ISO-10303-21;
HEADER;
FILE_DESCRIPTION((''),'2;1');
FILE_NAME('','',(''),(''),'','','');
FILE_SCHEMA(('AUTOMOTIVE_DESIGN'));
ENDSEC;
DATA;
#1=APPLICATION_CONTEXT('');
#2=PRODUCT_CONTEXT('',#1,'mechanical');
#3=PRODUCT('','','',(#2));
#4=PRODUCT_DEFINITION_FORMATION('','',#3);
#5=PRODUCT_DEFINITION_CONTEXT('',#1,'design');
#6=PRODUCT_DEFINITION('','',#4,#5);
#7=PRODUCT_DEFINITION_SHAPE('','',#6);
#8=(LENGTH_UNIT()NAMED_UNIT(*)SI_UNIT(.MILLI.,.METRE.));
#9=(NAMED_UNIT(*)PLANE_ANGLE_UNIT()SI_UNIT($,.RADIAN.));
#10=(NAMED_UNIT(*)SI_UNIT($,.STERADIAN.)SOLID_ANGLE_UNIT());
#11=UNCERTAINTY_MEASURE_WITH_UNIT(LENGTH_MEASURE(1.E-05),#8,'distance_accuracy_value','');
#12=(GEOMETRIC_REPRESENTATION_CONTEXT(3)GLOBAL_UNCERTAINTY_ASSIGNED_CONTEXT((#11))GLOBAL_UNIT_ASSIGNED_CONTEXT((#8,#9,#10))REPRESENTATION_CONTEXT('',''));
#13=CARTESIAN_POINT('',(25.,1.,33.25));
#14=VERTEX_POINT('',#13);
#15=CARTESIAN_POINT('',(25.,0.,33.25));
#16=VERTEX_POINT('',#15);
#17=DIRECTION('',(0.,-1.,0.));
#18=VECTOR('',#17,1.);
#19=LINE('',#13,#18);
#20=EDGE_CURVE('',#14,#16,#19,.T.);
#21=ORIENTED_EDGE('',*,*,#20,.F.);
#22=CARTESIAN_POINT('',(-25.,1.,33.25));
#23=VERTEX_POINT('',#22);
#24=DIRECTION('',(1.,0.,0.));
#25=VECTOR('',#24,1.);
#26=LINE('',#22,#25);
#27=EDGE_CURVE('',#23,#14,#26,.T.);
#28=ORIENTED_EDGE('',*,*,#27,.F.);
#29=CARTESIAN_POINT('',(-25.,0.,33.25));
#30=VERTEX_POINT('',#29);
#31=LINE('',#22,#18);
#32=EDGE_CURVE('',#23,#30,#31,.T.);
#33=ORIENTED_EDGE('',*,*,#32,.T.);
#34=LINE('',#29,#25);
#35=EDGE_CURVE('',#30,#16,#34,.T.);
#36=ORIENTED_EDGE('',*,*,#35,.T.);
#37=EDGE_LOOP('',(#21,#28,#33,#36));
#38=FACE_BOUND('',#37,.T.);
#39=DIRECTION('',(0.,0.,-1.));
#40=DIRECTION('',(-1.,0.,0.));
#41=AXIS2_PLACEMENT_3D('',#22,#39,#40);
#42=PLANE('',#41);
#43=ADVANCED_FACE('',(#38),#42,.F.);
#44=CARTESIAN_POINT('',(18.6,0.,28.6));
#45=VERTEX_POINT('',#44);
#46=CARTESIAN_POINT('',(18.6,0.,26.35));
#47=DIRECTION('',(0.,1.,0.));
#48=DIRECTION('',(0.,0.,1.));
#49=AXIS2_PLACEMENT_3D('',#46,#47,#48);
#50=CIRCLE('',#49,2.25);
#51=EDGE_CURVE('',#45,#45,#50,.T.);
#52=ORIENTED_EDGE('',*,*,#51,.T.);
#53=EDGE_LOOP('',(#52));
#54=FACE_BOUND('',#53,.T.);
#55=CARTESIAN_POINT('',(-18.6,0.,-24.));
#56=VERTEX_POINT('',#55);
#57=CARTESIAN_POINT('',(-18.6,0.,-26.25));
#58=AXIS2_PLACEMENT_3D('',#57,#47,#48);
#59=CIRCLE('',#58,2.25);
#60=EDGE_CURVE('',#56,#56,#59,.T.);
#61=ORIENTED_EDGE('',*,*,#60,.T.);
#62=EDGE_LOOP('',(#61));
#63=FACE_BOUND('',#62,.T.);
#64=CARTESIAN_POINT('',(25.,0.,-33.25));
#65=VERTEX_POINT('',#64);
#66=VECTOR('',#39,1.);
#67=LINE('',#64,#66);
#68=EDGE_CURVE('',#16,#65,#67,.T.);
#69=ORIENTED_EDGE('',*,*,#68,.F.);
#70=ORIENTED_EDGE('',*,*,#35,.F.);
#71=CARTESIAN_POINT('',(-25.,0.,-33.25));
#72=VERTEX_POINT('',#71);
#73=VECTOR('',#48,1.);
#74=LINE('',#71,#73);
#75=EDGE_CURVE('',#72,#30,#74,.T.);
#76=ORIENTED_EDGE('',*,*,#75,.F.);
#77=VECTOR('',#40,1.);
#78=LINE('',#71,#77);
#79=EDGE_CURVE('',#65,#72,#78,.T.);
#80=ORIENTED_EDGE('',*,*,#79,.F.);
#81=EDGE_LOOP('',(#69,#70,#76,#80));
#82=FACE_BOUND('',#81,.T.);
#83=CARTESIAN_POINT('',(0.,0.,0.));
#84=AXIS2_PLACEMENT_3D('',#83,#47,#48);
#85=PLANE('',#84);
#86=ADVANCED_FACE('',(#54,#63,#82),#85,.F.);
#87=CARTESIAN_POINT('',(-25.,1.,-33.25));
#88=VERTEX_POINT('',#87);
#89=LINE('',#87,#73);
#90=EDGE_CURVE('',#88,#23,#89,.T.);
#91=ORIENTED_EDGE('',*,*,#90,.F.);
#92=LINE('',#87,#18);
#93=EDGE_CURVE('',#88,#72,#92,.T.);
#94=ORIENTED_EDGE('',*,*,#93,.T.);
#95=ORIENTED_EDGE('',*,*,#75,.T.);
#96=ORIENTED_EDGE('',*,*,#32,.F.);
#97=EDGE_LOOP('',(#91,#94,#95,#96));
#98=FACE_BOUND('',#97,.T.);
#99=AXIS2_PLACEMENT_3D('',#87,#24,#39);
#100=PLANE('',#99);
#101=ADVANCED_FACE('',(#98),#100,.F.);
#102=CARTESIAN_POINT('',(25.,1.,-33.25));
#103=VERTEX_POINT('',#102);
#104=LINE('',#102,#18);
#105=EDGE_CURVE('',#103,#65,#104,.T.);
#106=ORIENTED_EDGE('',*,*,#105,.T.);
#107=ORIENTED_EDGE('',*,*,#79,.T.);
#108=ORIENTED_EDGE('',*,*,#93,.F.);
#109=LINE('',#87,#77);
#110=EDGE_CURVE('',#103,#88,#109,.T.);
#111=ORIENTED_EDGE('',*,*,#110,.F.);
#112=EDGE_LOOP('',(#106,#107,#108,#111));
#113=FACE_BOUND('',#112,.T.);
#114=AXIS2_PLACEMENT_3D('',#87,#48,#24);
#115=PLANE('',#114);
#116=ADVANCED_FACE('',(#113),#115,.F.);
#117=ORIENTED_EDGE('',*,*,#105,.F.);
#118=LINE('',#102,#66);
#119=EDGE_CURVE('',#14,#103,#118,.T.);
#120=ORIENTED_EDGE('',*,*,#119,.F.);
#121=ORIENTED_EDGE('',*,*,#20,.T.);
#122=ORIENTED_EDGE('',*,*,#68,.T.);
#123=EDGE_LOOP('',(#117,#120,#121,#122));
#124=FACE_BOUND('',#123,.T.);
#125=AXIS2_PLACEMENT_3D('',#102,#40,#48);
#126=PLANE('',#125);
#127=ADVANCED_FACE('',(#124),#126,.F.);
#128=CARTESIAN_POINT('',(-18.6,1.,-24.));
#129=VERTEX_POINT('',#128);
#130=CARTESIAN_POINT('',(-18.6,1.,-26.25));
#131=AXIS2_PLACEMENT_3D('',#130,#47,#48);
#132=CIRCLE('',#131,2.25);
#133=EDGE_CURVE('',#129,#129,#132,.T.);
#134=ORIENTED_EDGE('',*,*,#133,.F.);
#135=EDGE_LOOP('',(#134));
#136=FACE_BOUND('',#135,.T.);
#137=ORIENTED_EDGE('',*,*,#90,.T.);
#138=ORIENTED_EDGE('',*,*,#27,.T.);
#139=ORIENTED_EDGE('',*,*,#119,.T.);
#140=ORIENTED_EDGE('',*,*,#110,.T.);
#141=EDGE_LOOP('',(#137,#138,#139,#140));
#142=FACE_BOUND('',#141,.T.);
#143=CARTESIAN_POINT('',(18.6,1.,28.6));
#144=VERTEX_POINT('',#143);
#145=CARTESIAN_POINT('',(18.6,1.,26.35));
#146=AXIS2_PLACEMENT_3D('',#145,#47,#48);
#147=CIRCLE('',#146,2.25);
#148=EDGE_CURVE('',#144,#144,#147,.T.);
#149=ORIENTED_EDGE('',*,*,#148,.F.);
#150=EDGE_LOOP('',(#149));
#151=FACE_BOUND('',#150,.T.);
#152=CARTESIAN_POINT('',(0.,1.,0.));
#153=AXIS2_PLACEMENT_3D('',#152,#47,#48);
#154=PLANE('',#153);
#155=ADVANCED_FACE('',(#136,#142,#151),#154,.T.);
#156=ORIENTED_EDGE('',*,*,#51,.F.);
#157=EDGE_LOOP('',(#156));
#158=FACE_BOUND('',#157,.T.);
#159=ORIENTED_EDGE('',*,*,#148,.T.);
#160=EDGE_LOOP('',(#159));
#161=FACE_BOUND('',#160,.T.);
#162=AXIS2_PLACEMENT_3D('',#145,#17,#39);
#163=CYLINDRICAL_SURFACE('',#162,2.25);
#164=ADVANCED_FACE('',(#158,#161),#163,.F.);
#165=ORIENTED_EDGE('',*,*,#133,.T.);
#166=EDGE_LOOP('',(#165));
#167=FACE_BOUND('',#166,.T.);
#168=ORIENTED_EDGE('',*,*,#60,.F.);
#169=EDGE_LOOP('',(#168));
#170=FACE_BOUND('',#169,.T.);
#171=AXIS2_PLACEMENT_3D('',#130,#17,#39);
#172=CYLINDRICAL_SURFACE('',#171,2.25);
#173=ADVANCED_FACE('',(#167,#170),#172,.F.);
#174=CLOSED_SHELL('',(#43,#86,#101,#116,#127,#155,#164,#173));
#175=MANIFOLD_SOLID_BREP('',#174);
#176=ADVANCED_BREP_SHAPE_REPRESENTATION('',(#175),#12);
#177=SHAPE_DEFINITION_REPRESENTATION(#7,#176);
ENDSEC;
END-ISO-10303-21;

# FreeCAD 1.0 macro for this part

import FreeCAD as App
import Part
import Sketcher

V = App.Vector
Q = App.Units.Quantity


def add_polygon(sketch, points):
    """Adds a closed chain of lines whose ends are joined by coincident constraints."""
    first, n = sketch.GeometryCount, len(points)
    for a, b in zip(points, points[1:] + points[:1]):
        sketch.addGeometry(Part.LineSegment(App.Vector(*a, 0), App.Vector(*b, 0)), False)
    for i in range(n):
        sketch.addConstraint(Sketcher.Constraint("Coincident", first + i, 2, first + (i + 1) % n, 1))

doc = App.newDocument("Part")
body = doc.addObject("PartDesign::Body", "Body")

# Sketch on XZ plane
sketch1 = body.newObject("Sketcher::SketchObject", "Sketch")
sketch1.AttachmentSupport = (doc.getObject("XZ_Plane"), [""])
sketch1.MapMode = "FlatFace"
add_polygon(sketch1, [(-25, -33.2), (-25, 33.2), (25, 33.2), (25, -33.2)])  # lines 0-3
sketch1.addGeometry(Part.Circle(V(18.6, 26.4, 0), V(0, 0, 1), 2.2), False)  # 4
sketch1.addGeometry(Part.Circle(V(-18.6, -26.2, 0), V(0, 0, 1), 2.2), False)  # 5
sketch1.addConstraint([
    Sketcher.Constraint("Vertical", 0),
    Sketcher.Constraint("Horizontal", 1),
    Sketcher.Constraint("Vertical", 2),
    Sketcher.Constraint("Horizontal", 3),
    Sketcher.Constraint("Equal", 4, 5),
    Sketcher.Constraint("Symmetric", 0, 2, 2, 2, -1, 1),
    Sketcher.Constraint("Diameter", 4, Q("4.5 mm")),
    Sketcher.Constraint("DistanceX", 1, 1, 1, 2, Q("50 mm")),
    Sketcher.Constraint("DistanceY", 0, 1, 0, 2, Q("66.5 mm")),
    Sketcher.Constraint("DistanceY", 2, 2, 5, 3, Q("7 mm")),
    Sketcher.Constraint("DistanceX", -1, 1, 4, 3, Q("18.6 mm")),
    Sketcher.Constraint("DistanceX", 5, 3, -1, 1, Q("18.6 mm")),
    Sketcher.Constraint("DistanceY", 5, 3, 4, 3, Q("52.6 mm")),
])
pad1 = body.newObject("PartDesign::Pad", "Pad")
pad1.Profile = sketch1
pad1.Length = 1
pad1.Reversed = True

doc.recompute()
